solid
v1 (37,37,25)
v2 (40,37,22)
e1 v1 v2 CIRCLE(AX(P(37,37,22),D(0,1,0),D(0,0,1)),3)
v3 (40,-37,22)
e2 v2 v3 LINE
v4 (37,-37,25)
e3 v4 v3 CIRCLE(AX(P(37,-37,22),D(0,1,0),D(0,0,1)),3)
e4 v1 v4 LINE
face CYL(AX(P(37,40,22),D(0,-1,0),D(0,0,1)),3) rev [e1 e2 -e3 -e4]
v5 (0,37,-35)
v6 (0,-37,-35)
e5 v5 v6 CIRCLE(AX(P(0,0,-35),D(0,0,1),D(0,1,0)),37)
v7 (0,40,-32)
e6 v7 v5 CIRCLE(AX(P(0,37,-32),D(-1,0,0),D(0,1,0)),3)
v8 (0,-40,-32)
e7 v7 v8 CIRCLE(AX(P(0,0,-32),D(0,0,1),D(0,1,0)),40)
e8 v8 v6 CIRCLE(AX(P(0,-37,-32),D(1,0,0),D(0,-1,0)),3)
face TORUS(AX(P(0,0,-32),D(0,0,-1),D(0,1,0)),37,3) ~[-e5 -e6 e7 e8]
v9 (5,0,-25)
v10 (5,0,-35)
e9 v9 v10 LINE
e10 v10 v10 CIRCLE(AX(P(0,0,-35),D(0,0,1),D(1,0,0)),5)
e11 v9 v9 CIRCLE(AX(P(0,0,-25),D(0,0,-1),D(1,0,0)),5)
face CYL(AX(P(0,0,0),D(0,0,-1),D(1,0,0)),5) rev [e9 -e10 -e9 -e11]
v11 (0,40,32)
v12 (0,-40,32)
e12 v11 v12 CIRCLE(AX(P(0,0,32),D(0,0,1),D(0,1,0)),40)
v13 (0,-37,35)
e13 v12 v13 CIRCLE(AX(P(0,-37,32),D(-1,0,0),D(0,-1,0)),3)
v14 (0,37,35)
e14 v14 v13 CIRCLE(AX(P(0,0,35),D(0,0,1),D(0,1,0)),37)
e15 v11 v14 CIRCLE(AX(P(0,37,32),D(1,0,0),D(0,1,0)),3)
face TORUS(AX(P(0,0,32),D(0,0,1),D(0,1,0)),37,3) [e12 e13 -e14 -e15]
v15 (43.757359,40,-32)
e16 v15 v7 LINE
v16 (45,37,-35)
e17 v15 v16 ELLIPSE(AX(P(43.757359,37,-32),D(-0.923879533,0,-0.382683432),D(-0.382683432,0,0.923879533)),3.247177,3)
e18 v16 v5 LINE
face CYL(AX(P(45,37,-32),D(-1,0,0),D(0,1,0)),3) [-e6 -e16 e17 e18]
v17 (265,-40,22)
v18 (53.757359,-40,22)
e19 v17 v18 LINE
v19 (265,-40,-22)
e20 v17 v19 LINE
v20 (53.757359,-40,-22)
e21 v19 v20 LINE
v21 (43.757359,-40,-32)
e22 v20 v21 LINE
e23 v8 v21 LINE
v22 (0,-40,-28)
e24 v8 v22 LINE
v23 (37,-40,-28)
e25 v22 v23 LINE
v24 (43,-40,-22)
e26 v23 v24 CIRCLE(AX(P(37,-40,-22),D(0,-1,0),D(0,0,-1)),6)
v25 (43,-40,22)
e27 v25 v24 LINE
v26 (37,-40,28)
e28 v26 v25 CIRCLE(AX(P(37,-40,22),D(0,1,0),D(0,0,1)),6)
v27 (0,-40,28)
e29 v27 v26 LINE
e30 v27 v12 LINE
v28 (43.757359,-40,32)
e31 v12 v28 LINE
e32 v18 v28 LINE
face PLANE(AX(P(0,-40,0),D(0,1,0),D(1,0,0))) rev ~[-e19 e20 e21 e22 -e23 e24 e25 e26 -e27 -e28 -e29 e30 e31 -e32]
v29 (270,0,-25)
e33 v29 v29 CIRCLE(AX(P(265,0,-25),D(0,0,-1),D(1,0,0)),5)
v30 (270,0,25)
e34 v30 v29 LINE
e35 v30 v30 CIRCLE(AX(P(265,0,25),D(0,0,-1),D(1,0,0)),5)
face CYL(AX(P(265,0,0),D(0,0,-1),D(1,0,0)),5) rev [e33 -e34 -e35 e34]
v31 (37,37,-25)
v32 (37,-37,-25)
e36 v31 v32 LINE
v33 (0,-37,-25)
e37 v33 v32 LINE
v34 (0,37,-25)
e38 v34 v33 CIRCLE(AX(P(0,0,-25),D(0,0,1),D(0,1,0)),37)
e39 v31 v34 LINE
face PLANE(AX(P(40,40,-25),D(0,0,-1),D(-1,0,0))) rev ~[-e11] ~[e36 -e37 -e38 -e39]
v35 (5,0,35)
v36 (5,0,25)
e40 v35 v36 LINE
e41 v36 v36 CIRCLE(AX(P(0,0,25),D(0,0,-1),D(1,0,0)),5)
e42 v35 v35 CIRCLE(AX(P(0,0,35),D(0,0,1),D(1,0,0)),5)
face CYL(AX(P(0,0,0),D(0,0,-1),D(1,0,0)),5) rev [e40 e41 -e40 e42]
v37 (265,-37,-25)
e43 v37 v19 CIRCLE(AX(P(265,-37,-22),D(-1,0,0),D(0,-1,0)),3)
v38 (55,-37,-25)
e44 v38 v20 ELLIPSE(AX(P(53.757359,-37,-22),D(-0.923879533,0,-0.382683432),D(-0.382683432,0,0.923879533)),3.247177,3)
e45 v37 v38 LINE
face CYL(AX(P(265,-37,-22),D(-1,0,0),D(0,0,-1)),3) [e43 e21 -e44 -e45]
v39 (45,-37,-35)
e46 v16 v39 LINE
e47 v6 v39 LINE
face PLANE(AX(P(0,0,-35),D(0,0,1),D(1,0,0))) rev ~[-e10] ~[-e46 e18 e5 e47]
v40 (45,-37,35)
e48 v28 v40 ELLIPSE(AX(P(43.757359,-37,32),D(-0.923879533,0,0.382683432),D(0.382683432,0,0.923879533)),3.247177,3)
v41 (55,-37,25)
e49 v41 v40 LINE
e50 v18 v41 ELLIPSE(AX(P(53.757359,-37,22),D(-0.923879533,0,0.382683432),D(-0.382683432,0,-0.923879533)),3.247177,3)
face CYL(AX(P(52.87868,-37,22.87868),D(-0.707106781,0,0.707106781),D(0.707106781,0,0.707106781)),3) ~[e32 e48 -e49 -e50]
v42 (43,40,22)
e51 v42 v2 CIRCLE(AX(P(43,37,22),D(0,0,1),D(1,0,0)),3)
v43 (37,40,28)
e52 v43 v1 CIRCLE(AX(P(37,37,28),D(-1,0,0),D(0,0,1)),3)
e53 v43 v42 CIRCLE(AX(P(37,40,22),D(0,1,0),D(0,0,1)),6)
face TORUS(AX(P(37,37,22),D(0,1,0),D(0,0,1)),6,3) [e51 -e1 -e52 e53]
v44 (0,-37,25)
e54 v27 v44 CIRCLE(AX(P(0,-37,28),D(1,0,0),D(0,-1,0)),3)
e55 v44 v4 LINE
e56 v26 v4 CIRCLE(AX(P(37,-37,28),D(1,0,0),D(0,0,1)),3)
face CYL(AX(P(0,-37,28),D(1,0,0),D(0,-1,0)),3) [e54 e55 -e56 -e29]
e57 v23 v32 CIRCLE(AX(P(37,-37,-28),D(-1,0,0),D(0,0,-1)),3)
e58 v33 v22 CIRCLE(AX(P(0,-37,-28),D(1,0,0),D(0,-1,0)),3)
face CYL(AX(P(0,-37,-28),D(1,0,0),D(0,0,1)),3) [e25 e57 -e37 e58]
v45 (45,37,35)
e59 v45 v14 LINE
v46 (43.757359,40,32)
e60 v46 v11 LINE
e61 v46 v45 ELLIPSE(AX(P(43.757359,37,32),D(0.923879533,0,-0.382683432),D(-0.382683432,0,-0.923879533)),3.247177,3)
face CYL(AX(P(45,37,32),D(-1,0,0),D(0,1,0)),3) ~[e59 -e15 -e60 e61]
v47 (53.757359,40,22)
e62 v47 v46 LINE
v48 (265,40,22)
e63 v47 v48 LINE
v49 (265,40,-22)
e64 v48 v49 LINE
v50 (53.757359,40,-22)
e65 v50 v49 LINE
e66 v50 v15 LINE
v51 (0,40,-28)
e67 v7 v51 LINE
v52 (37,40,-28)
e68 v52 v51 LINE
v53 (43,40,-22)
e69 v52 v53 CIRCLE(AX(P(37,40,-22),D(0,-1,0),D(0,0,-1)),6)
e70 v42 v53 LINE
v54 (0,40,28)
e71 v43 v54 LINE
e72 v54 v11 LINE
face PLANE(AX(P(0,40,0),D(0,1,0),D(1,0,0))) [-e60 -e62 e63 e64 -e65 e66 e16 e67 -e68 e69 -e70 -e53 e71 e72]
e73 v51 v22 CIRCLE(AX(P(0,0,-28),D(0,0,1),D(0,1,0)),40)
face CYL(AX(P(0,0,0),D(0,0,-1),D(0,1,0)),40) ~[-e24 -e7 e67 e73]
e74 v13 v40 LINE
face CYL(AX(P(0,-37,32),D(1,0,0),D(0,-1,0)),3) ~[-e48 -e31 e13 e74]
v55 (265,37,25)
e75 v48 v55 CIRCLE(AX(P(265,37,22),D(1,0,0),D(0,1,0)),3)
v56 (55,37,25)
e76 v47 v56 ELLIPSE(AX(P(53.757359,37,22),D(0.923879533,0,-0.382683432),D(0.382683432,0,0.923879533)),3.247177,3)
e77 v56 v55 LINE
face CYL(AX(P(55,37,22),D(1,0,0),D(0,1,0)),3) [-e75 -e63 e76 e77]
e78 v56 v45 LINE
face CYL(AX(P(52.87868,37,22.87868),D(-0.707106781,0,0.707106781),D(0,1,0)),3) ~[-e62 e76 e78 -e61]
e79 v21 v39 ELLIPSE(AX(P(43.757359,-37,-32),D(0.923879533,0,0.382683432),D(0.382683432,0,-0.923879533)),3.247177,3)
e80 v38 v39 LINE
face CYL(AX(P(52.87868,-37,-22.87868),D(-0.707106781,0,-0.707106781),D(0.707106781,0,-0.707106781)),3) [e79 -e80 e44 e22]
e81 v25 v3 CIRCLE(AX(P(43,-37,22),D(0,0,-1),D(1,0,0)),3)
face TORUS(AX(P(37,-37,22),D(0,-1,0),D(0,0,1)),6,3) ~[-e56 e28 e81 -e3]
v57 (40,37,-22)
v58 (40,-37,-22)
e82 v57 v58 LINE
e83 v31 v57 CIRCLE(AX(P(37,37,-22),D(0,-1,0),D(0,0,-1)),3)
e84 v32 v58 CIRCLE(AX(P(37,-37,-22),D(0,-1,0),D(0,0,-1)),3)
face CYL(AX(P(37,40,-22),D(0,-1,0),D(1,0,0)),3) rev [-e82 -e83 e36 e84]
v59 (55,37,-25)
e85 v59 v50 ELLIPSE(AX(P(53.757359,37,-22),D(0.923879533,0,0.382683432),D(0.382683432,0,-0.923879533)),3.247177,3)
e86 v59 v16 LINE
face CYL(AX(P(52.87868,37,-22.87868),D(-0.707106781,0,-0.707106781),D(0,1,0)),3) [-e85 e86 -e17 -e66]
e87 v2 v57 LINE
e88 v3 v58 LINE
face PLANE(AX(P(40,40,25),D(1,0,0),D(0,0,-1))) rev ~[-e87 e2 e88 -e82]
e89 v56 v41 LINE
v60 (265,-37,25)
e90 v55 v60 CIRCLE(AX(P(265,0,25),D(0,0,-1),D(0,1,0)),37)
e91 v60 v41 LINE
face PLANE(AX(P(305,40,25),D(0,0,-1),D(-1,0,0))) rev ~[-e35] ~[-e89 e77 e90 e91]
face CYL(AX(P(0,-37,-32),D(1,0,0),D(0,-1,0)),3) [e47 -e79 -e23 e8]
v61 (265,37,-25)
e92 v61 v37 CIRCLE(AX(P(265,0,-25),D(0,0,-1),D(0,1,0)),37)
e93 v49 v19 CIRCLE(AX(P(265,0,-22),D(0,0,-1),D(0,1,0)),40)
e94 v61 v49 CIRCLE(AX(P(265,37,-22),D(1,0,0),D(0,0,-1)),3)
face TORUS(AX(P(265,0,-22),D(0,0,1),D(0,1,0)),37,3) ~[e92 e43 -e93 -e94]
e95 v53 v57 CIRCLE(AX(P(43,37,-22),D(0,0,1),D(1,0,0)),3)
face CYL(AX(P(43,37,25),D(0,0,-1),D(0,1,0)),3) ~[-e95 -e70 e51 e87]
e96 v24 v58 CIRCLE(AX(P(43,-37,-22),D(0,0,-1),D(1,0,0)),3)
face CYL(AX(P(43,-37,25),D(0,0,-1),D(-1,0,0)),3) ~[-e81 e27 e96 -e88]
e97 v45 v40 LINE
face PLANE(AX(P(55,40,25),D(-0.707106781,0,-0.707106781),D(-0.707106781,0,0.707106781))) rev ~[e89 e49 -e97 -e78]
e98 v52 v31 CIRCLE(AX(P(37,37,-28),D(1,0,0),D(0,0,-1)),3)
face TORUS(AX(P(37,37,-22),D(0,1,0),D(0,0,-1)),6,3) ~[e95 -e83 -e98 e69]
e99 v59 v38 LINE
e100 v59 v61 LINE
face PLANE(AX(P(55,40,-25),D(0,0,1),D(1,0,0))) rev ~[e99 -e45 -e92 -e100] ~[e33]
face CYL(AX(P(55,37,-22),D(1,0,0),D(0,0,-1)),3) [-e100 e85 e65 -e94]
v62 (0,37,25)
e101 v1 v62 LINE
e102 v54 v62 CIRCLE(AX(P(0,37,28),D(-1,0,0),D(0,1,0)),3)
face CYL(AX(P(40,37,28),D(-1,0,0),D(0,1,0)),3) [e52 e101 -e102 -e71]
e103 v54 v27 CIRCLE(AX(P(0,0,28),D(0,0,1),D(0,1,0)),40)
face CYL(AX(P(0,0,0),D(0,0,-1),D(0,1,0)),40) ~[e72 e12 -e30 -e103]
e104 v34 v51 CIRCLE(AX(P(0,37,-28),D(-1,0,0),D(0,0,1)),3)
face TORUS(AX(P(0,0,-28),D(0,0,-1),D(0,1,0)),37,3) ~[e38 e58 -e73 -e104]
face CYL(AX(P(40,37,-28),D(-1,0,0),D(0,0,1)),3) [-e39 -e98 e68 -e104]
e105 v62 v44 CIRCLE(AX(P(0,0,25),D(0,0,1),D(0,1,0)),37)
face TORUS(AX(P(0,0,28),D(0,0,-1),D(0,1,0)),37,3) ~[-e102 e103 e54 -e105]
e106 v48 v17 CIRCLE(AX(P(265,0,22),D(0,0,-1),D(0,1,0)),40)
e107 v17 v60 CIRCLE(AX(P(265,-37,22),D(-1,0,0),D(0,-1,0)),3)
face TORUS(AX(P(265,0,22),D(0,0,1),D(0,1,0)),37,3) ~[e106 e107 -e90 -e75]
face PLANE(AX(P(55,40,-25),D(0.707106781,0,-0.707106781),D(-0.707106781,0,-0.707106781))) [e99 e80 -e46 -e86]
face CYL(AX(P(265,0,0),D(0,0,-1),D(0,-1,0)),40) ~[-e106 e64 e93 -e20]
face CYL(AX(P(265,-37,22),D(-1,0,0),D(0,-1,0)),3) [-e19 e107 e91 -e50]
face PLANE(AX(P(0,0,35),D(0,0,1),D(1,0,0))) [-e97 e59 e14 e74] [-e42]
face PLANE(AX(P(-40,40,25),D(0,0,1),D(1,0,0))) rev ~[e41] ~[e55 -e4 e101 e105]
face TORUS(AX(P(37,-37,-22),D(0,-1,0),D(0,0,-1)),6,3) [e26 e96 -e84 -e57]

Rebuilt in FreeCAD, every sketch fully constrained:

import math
import FreeCAD as App
import Part
import Sketcher

V = App.Vector


def edges_at(feature, points):
    """Names of the edges that pass closest to the given points."""
    edges = feature.Shape.Edges
    near = lambda p: min(range(len(edges)), key=lambda i: edges[i].distToShape(Part.Vertex(*p))[0])
    return sorted({f"Edge{near(p) + 1}" for p in points})


def add_polygon(sketch, points):
    """Adds a closed chain of lines whose ends are joined by coincident constraints."""
    first, n = sketch.GeometryCount, len(points)
    for a, b in zip(points, points[1:] + points[:1]):
        sketch.addGeometry(Part.LineSegment(App.Vector(*a, 0), App.Vector(*b, 0)), False)
    for i in range(n):
        sketch.addConstraint(Sketcher.Constraint("Coincident", first + i, 2, first + (i + 1) % n, 1))

doc = App.newDocument("Part")
body = doc.addObject("PartDesign::Body", "Body")

sketch1 = body.newObject("Sketcher::SketchObject", "Sketch")
sketch1.AttachmentSupport = (doc.getObject("XY_Plane"), [""])
sketch1.MapMode = "FlatFace"
sketch1.addGeometry([
    Part.LineSegment(V(265, 40, 0), V(0, 40, 0)),
    Part.ArcOfCircle(Part.Circle(V(0, 0, 0), V(0, 0, 1), 40), math.radians(90), math.radians(270)),
    Part.LineSegment(V(0, -40, 0), V(265, -40, 0)),
    Part.ArcOfCircle(Part.Circle(V(265, 0, 0), V(0, 0, 1), 40), math.radians(-90), math.radians(90)),
    Part.Circle(V(0, 0, 0), V(0, 0, 1), 5),
    Part.Circle(V(265, 0, 0), V(0, 0, 1), 5),
], False)
sketch1.addConstraint([
    Sketcher.Constraint("Tangent", 0, 2, 1, 1),
    Sketcher.Constraint("Tangent", 1, 2, 2, 1),
    Sketcher.Constraint("Tangent", 2, 2, 3, 1),
    Sketcher.Constraint("Tangent", 3, 2, 0, 1),
    Sketcher.Constraint("Horizontal", 0),
    Sketcher.Constraint("Horizontal", 2),
    Sketcher.Constraint("Coincident", 1, 3, -1, 1),
    Sketcher.Constraint("Coincident", 4, 3, -1, 1),
    Sketcher.Constraint("Coincident", 5, 3, 3, 3),
    Sketcher.Constraint("Equal", 4, 5),
    Sketcher.Constraint("Diameter", 4, 10.0),
    Sketcher.Constraint("Radius", 1, 40.0),
    Sketcher.Constraint("DistanceX", 0, 2, 0, 1, 265.0),
])
pad1 = body.newObject("PartDesign::Pad", "Pad")
pad1.Profile = sketch1
pad1.Length = 70
pad1.Midplane = True

sketch2 = body.newObject("Sketcher::SketchObject", "Sketch001")
sketch2.AttachmentSupport = (doc.getObject("XZ_Plane"), [""])
sketch2.MapMode = "FlatFace"
sketch2.AttachmentOffset = App.Placement(V(0, 0, -40), App.Rotation())
add_polygon(sketch2, [(55, -25), (305, -25), (305, -35), (45, -35)])
add_polygon(sketch2, [(305, 35), (305, 25), (55, 25), (45, 35)])
add_polygon(sketch2, [(40, -25), (-40, -25), (-40, 25), (40, 25)])
sketch2.addConstraint([
    Sketcher.Constraint("Horizontal", 0),
    Sketcher.Constraint("Vertical", 1),
    Sketcher.Constraint("Horizontal", 2),
    Sketcher.Constraint("Vertical", 4),
    Sketcher.Constraint("Horizontal", 5),
    Sketcher.Constraint("Horizontal", 7),
    Sketcher.Constraint("Horizontal", 8),
    Sketcher.Constraint("Vertical", 9),
    Sketcher.Constraint("Horizontal", 10),
    Sketcher.Constraint("Vertical", 11),
    Sketcher.Constraint("Symmetric", 8, 2, 10, 2, -1, 1),
    Sketcher.Constraint("Symmetric", 0, 2, 4, 2, -1),
    Sketcher.Constraint("Symmetric", 2, 2, 6, 2, -1),
    Sketcher.Constraint("Perpendicular", 3, 6),
    Sketcher.Constraint("Horizontal", 3, 2, 8, 2),
    Sketcher.Constraint("Vertical", 3, 2, 5, 2),
    Sketcher.Constraint("DistanceX", 8, 2, 8, 1, 80.0),
    Sketcher.Constraint("DistanceY", 1, 2, 1, 1, 10.0),
    Sketcher.Constraint("DistanceX", 8, 2, 2, 2, 85.0),
    Sketcher.Constraint("DistanceX", 0, 1, 0, 2, 250.0),
    Sketcher.Constraint("DistanceY", 9, 1, 9, 2, 50.0),
])
pocket1 = body.newObject("PartDesign::Pocket", "Pocket")
pocket1.Profile = sketch2
pocket1.Type = "ThroughAll"
pocket1.Reversed = True
doc.recompute()

fillet = body.newObject("PartDesign::Fillet", "Fillet")
fillet.Base = (pocket1, edges_at(pocket1, [
    (305, 0, 25),
    (160, -40, 25),
    (160, 40, 25),
    (305, 0, -25),
    (160, -40, -25),
    (160, 40, -25),
    (-40, 0, 35),
    (22.5, -40, 35),
    (22.5, 40, 35),
    (-40, 0, 25),
    (20, -40, 25),
    (20, 40, 25),
    (-40, 0, -25),
    (20, -40, -25),
    (20, 40, -25),
    (-40, 0, -35),
    (22.5, -40, -35),
    (22.5, 40, -35),
    (40, 40, 0),
    (40, -40, 0),
    (50, -40, 30),
    (50, 40, 30),
    (50, 40, -30),
    (50, -40, -30),
    (40, 0, -25),
    (40, 0, 25),
]))
fillet.Radius = 3

doc.recompute()
